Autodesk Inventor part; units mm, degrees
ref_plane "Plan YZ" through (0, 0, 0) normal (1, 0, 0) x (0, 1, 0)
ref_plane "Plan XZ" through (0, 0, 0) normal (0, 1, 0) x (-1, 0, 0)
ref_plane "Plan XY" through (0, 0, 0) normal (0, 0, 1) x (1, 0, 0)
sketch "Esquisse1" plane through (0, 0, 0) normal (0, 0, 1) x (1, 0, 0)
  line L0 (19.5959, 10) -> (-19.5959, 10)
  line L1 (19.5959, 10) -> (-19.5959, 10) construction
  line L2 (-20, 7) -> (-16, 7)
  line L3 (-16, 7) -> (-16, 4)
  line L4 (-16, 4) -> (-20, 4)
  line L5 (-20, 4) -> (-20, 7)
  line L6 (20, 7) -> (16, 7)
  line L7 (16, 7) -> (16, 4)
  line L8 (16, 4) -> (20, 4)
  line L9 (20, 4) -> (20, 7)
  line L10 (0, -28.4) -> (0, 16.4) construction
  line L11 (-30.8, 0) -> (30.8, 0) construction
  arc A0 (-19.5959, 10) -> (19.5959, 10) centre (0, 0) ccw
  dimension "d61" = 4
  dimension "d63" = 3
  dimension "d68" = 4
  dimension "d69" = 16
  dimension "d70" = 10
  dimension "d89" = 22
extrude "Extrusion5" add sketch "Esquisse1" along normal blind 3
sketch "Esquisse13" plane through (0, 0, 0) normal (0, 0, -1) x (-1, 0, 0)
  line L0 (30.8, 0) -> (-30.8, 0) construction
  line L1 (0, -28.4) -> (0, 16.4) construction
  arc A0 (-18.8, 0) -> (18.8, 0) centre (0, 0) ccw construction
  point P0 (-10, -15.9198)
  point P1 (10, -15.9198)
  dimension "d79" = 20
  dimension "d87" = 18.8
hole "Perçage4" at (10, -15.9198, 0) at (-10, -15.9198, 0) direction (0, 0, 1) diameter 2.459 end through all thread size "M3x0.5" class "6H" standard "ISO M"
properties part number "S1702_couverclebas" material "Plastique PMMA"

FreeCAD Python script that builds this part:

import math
import FreeCAD as App
import Part
import Sketcher
from FreeCAD import Vector

doc = App.newDocument("Part")
params = doc.addObject("Spreadsheet::Sheet", "Params")
for row, (alias, value) in enumerate([
    ("sketch1_radius", "22 mm"),
    ("sketch1_width", "4 mm"),
    ("sketch1_height", "3 mm"),
    ("pad1_length", "3 mm"),
    ("hole_diameter", "2.459 mm"),
], start=1):
    params.set(f"A{row}", alias)
    params.set(f"B{row}", "=" + value)
    params.setAlias(f"B{row}", alias)

body = doc.addObject("PartDesign::Body", "Body")

sketch1 = doc.addObject("Sketcher::SketchObject", "Sketch")
body.addObject(sketch1)
sketch1.AttachmentSupport = (doc.XY_Plane, [""])
sketch1.MapMode = "FlatFace"
sketch1.addGeometry(Part.ArcOfCircle(Part.Circle(Vector(0, 0, 0), Vector(0, 0, 1), 22), math.radians(153), math.radians(387)), False)
sketch1.addGeometry(Part.LineSegment(Vector(19.6, 10, 0), Vector(-19.6, 10, 0)), False)
sketch1.addGeometry(Part.LineSegment(Vector(-20, 4, 0), Vector(-20, 7, 0)), False)
sketch1.addGeometry(Part.LineSegment(Vector(-20, 7, 0), Vector(-16, 7, 0)), False)
sketch1.addGeometry(Part.LineSegment(Vector(-16, 7, 0), Vector(-16, 4, 0)), False)
sketch1.addGeometry(Part.LineSegment(Vector(-16, 4, 0), Vector(-20, 4, 0)), False)
sketch1.addGeometry(Part.LineSegment(Vector(16, 7, 0), Vector(20, 7, 0)), False)
sketch1.addGeometry(Part.LineSegment(Vector(20, 7, 0), Vector(20, 4, 0)), False)
sketch1.addGeometry(Part.LineSegment(Vector(20, 4, 0), Vector(16, 4, 0)), False)
sketch1.addGeometry(Part.LineSegment(Vector(16, 4, 0), Vector(16, 7, 0)), False)
sketch1.addConstraint(Sketcher.Constraint("Coincident", 0, 1, 1, 2))
sketch1.addConstraint(Sketcher.Constraint("Coincident", 1, 1, 0, 2))
sketch1.addConstraint(Sketcher.Constraint("Coincident", 2, 2, 3, 1))
sketch1.addConstraint(Sketcher.Constraint("Coincident", 3, 2, 4, 1))
sketch1.addConstraint(Sketcher.Constraint("Coincident", 4, 2, 5, 1))
sketch1.addConstraint(Sketcher.Constraint("Coincident", 5, 2, 2, 1))
sketch1.addConstraint(Sketcher.Constraint("Coincident", 6, 2, 7, 1))
sketch1.addConstraint(Sketcher.Constraint("Coincident", 7, 2, 8, 1))
sketch1.addConstraint(Sketcher.Constraint("Coincident", 8, 2, 9, 1))
sketch1.addConstraint(Sketcher.Constraint("Coincident", 9, 2, 6, 1))
sketch1.addConstraint(Sketcher.Constraint("Horizontal", 1))
sketch1.addConstraint(Sketcher.Constraint("Vertical", 2))
sketch1.addConstraint(Sketcher.Constraint("Horizontal", 3))
sketch1.addConstraint(Sketcher.Constraint("Vertical", 4))
sketch1.addConstraint(Sketcher.Constraint("Horizontal", 5))
sketch1.addConstraint(Sketcher.Constraint("Horizontal", 6))
sketch1.addConstraint(Sketcher.Constraint("Vertical", 7))
sketch1.addConstraint(Sketcher.Constraint("Horizontal", 8))
sketch1.addConstraint(Sketcher.Constraint("Vertical", 9))
sketch1.addConstraint(Sketcher.Constraint("Coincident", 0, 3, -1, 1))
sketch1.addConstraint(Sketcher.Constraint("Symmetric", 2, 2, 6, 2, -2))
sketch1.addConstraint(Sketcher.Constraint("Symmetric", 4, 2, 8, 2, -2))
sketch1.addConstraint(Sketcher.Constraint("Radius", 0, 22.0))
sketch1.addConstraint(Sketcher.Constraint("DistanceX", 3, 1, 3, 2, 4.0))
sketch1.addConstraint(Sketcher.Constraint("DistanceY", 2, 1, 2, 2, 3.0))
sketch1.addConstraint(Sketcher.Constraint("DistanceY", -1, 1, 0, 1, 10.0))
sketch1.addConstraint(Sketcher.Constraint("DistanceX", 3, 2, -1, 1, 16.0))
sketch1.addConstraint(Sketcher.Constraint("DistanceY", -1, 1, 4, 2, 4.0))
sketch1.setExpression("Constraints[22]", "Params.sketch1_radius")
sketch1.setExpression("Constraints[23]", "Params.sketch1_width")
sketch1.setExpression("Constraints[24]", "Params.sketch1_height")
pad1 = doc.addObject("PartDesign::Pad", "Pad")
body.addObject(pad1)
pad1.Profile = sketch1
pad1.setExpression("Length", "Params.pad1_length")

sketch2 = doc.addObject("Sketcher::SketchObject", "Sketch001")
body.addObject(sketch2)
sketch2.AttachmentSupport = (doc.XY_Plane, [""])
sketch2.MapMode = "FlatFace"
sketch2.addGeometry(Part.Circle(Vector(10, -15.9, 0), Vector(0, 0, 1), 1.2), False)
sketch2.addGeometry(Part.Circle(Vector(-10, -15.9, 0), Vector(0, 0, 1), 1.2), False)
sketch2.addConstraint(Sketcher.Constraint("Equal", 0, 1))
sketch2.addConstraint(Sketcher.Constraint("Symmetric", 0, 3, 1, 3, -2))
sketch2.addConstraint(Sketcher.Constraint("Diameter", 0, 2.459))
sketch2.addConstraint(Sketcher.Constraint("DistanceX", -1, 1, 0, 3, 10.0))
sketch2.addConstraint(Sketcher.Constraint("DistanceY", 0, 3, -1, 1, 15.9198))
doc.recompute()
hole = doc.addObject("PartDesign::Hole", "Hole")
body.addObject(hole)
hole.Profile = sketch2
hole.ThreadType = "None"
hole.setExpression("Diameter", "Params.hole_diameter")
hole.DepthType = "ThroughAll"
hole.Reversed = True

doc.recompute()
